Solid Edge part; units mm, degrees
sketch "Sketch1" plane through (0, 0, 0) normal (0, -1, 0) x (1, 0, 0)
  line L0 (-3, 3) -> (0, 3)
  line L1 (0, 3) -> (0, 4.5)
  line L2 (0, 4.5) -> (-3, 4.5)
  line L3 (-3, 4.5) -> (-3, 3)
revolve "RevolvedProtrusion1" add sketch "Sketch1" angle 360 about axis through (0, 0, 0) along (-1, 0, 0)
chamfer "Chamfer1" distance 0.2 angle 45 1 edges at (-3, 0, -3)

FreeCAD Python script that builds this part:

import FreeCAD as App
import Part
import Sketcher
from FreeCAD import Vector
Q = App.Units.Quantity


def edges_at(feature, points):
    """Names of the edges that pass closest to the given points."""
    edges = feature.Shape.Edges
    near = lambda p: min(range(len(edges)), key=lambda i: edges[i].distToShape(Part.Vertex(*p))[0])
    return sorted({f"Edge{near(p) + 1}" for p in points})

doc = App.newDocument("Part")
body = doc.addObject("PartDesign::Body", "Body")

# Sketch on XZ plane
sketch1 = doc.addObject("Sketcher::SketchObject", "Sketch")
body.addObject(sketch1)
sketch1.AttachmentSupport = (doc.XZ_Plane, [""])
sketch1.MapMode = "FlatFace"
sketch1.addGeometry(Part.LineSegment(Vector(-3, 4.5, 0), Vector(-3, 3, 0)), False)
sketch1.addGeometry(Part.LineSegment(Vector(-3, 3, 0), Vector(0, 3, 0)), False)
sketch1.addGeometry(Part.LineSegment(Vector(0, 3, 0), Vector(0, 4.5, 0)), False)
sketch1.addGeometry(Part.LineSegment(Vector(0, 4.5, 0), Vector(-3, 4.5, 0)), False)
sketch1.addConstraint(Sketcher.Constraint("Coincident", 0, 2, 1, 1))
sketch1.addConstraint(Sketcher.Constraint("Coincident", 1, 2, 2, 1))
sketch1.addConstraint(Sketcher.Constraint("Coincident", 2, 2, 3, 1))
sketch1.addConstraint(Sketcher.Constraint("Coincident", 3, 2, 0, 1))
sketch1.addConstraint(Sketcher.Constraint("Vertical", 0))
sketch1.addConstraint(Sketcher.Constraint("Horizontal", 1))
sketch1.addConstraint(Sketcher.Constraint("Vertical", 2))
sketch1.addConstraint(Sketcher.Constraint("Horizontal", 3))
sketch1.addConstraint(Sketcher.Constraint("PointOnObject", 1, 2, -2))
sketch1.addConstraint(Sketcher.Constraint("DistanceX", 1, 1, 1, 2, Q("3 mm")))
sketch1.addConstraint(Sketcher.Constraint("DistanceY", 0, 2, 0, 1, Q("1.5 mm")))
sketch1.addConstraint(Sketcher.Constraint("DistanceY", -1, 1, 0, 2, Q("3 mm")))
revolution = doc.addObject("PartDesign::Revolution", "Revolution")
body.addObject(revolution)
revolution.Profile = sketch1
revolution.ReferenceAxis = (sketch1, ["H_Axis"])
revolution.Angle = 360
doc.recompute()

chamfer = doc.addObject("PartDesign::Chamfer", "Chamfer")
body.addObject(chamfer)
chamfer.Base = (revolution, edges_at(revolution, [(-3, 0, -3)]))
chamfer.Size = 0.2

doc.recompute()
